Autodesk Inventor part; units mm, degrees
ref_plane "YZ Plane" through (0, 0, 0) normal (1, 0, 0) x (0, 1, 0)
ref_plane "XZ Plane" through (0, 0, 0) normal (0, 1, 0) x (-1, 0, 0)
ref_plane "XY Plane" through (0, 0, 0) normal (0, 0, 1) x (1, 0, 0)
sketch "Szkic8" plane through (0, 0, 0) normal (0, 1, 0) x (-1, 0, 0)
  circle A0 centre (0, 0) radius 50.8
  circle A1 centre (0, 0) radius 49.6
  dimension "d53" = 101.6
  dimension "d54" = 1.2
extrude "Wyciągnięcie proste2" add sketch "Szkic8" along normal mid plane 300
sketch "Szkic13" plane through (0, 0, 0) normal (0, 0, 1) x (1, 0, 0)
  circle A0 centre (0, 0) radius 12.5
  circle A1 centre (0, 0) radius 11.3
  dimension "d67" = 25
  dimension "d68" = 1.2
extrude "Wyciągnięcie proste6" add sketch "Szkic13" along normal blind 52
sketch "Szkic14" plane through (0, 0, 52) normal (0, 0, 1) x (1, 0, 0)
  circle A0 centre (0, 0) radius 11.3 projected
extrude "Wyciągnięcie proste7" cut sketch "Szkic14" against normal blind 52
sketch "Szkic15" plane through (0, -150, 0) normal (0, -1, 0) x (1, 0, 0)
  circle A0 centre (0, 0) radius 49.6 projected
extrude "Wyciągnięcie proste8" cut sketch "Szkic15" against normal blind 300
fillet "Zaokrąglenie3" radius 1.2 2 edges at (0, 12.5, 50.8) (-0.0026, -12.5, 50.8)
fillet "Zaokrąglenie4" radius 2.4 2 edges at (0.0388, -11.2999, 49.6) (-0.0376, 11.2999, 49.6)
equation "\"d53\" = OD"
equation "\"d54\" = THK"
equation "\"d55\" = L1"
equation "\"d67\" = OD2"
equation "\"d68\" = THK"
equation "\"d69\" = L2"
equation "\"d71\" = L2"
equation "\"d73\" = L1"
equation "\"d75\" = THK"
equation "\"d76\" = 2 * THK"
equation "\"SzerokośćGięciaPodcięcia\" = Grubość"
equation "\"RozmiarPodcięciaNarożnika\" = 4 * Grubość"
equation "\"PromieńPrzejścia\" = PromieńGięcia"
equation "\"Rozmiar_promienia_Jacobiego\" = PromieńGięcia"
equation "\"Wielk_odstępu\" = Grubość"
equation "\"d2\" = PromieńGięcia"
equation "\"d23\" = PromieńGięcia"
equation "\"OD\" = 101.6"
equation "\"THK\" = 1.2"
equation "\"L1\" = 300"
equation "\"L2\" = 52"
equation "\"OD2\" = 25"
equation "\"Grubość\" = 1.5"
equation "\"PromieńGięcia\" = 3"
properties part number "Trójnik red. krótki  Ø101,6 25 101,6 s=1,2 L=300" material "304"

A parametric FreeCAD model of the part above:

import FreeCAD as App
import Part
import Sketcher
from FreeCAD import Vector
Q = App.Units.Quantity


def edges_at(feature, points):
    """Names of the edges that pass closest to the given points."""
    edges = feature.Shape.Edges
    near = lambda p: min(range(len(edges)), key=lambda i: edges[i].distToShape(Part.Vertex(*p))[0])
    return sorted({f"Edge{near(p) + 1}" for p in points})

doc = App.newDocument("Part")
params = doc.addObject("Spreadsheet::Sheet", "Params")
for row, (alias, value) in enumerate([
    ("sketch1_diameter", "101.6 mm"),
    ("sketch1_diameter2", "99.2 mm"),
    ("pad1_length", "300 mm"),
    ("sketch2_diameter", "25 mm"),
    ("sketch2_diameter2", "22.6 mm"),
    ("pad2_length", "52 mm"),
    ("sketch3_diameter", "22.6 mm"),
    ("pocket1_length", "52 mm"),
    ("sketch4_diameter", "99.2 mm"),
    ("pocket2_length", "300 mm"),
    ("fillet_radius", "1.2 mm"),
    ("fillet2_radius", "2.4 mm"),
], start=1):
    params.set(f"A{row}", alias)
    params.set(f"B{row}", "=" + value)
    params.setAlias(f"B{row}", alias)

body = doc.addObject("PartDesign::Body", "Body")

# Sketch on XZ plane
sketch1 = body.newObject("Sketcher::SketchObject", "Sketch")
sketch1.AttachmentSupport = (doc.getObject("XZ_Plane"), [""])
sketch1.MapMode = "FlatFace"
sketch1.addGeometry([
    Part.Circle(Vector(0, 0, 0), Vector(0, 0, 1), 51),
    Part.Circle(Vector(0, 0, 0), Vector(0, 0, 1), 50),
], False)
sketch1.addConstraint([
    Sketcher.Constraint("Coincident", 0, 3, -1, 1),
    Sketcher.Constraint("Coincident", 1, 3, -1, 1),
    Sketcher.Constraint("Diameter", 0, Q("101.6 mm")),
    Sketcher.Constraint("Diameter", 1, Q("99.2 mm")),
])
sketch1.setExpression("Constraints[2]", "Params.sketch1_diameter")
sketch1.setExpression("Constraints[3]", "Params.sketch1_diameter2")
pad1 = body.newObject("PartDesign::Pad", "Pad")
pad1.Profile = sketch1
pad1.setExpression("Length", "Params.pad1_length")
pad1.Midplane = True

# Sketch on XY plane
sketch2 = body.newObject("Sketcher::SketchObject", "Sketch001")
sketch2.AttachmentSupport = (doc.getObject("XY_Plane"), [""])
sketch2.MapMode = "FlatFace"
sketch2.addGeometry([
    Part.Circle(Vector(0, 0, 0), Vector(0, 0, 1), 12),
    Part.Circle(Vector(0, 0, 0), Vector(0, 0, 1), 11),
], False)
sketch2.addConstraint([
    Sketcher.Constraint("Coincident", 0, 3, -1, 1),
    Sketcher.Constraint("Coincident", 1, 3, -1, 1),
    Sketcher.Constraint("Diameter", 0, Q("25 mm")),
    Sketcher.Constraint("Diameter", 1, Q("22.6 mm")),
])
sketch2.setExpression("Constraints[2]", "Params.sketch2_diameter")
sketch2.setExpression("Constraints[3]", "Params.sketch2_diameter2")
pad2 = body.newObject("PartDesign::Pad", "Pad001")
pad2.Profile = sketch2
pad2.setExpression("Length", "Params.pad2_length")

# Sketch on XY plane
sketch3 = body.newObject("Sketcher::SketchObject", "Sketch002")
sketch3.AttachmentSupport = (doc.getObject("XY_Plane"), [""])
sketch3.MapMode = "FlatFace"
sketch3.AttachmentOffset = App.Placement(Vector(0, 0, 52), App.Rotation())
sketch3.addGeometry(Part.Circle(Vector(0, 0, 0), Vector(0, 0, 1), 11), False)
sketch3.addConstraint([
    Sketcher.Constraint("Coincident", 0, 3, -1, 1),
    Sketcher.Constraint("Diameter", 0, Q("22.6 mm")),
])
sketch3.setExpression("Constraints[1]", "Params.sketch3_diameter")
pocket1 = body.newObject("PartDesign::Pocket", "Pocket")
pocket1.Profile = sketch3
pocket1.setExpression("Length", "Params.pocket1_length")

# Sketch on XZ plane
sketch4 = body.newObject("Sketcher::SketchObject", "Sketch003")
sketch4.AttachmentSupport = (doc.getObject("XZ_Plane"), [""])
sketch4.MapMode = "FlatFace"
sketch4.AttachmentOffset = App.Placement(Vector(0, 0, 150), App.Rotation())
sketch4.addGeometry(Part.Circle(Vector(0, 0, 0), Vector(0, 0, 1), 50), False)
sketch4.addConstraint([
    Sketcher.Constraint("Coincident", 0, 3, -1, 1),
    Sketcher.Constraint("Diameter", 0, Q("99.2 mm")),
])
sketch4.setExpression("Constraints[1]", "Params.sketch4_diameter")
pocket2 = body.newObject("PartDesign::Pocket", "Pocket001")
pocket2.Profile = sketch4
pocket2.setExpression("Length", "Params.pocket2_length")
doc.recompute()

fillet = body.newObject("PartDesign::Fillet", "Fillet")
fillet.Base = (pocket2, edges_at(pocket2, [(0, 12.5, 50.8), (-0.003, -12.5, 50.8)]))
fillet.setExpression("Radius", "Params.fillet_radius")
doc.recompute()

fillet2 = body.newObject("PartDesign::Fillet", "Fillet001")
fillet2.Base = (fillet, edges_at(fillet, [(0.039, -11.3, 49.6), (-0.038, 11.3, 49.6)]))
fillet2.setExpression("Radius", "Params.fillet2_radius")

doc.recompute()
